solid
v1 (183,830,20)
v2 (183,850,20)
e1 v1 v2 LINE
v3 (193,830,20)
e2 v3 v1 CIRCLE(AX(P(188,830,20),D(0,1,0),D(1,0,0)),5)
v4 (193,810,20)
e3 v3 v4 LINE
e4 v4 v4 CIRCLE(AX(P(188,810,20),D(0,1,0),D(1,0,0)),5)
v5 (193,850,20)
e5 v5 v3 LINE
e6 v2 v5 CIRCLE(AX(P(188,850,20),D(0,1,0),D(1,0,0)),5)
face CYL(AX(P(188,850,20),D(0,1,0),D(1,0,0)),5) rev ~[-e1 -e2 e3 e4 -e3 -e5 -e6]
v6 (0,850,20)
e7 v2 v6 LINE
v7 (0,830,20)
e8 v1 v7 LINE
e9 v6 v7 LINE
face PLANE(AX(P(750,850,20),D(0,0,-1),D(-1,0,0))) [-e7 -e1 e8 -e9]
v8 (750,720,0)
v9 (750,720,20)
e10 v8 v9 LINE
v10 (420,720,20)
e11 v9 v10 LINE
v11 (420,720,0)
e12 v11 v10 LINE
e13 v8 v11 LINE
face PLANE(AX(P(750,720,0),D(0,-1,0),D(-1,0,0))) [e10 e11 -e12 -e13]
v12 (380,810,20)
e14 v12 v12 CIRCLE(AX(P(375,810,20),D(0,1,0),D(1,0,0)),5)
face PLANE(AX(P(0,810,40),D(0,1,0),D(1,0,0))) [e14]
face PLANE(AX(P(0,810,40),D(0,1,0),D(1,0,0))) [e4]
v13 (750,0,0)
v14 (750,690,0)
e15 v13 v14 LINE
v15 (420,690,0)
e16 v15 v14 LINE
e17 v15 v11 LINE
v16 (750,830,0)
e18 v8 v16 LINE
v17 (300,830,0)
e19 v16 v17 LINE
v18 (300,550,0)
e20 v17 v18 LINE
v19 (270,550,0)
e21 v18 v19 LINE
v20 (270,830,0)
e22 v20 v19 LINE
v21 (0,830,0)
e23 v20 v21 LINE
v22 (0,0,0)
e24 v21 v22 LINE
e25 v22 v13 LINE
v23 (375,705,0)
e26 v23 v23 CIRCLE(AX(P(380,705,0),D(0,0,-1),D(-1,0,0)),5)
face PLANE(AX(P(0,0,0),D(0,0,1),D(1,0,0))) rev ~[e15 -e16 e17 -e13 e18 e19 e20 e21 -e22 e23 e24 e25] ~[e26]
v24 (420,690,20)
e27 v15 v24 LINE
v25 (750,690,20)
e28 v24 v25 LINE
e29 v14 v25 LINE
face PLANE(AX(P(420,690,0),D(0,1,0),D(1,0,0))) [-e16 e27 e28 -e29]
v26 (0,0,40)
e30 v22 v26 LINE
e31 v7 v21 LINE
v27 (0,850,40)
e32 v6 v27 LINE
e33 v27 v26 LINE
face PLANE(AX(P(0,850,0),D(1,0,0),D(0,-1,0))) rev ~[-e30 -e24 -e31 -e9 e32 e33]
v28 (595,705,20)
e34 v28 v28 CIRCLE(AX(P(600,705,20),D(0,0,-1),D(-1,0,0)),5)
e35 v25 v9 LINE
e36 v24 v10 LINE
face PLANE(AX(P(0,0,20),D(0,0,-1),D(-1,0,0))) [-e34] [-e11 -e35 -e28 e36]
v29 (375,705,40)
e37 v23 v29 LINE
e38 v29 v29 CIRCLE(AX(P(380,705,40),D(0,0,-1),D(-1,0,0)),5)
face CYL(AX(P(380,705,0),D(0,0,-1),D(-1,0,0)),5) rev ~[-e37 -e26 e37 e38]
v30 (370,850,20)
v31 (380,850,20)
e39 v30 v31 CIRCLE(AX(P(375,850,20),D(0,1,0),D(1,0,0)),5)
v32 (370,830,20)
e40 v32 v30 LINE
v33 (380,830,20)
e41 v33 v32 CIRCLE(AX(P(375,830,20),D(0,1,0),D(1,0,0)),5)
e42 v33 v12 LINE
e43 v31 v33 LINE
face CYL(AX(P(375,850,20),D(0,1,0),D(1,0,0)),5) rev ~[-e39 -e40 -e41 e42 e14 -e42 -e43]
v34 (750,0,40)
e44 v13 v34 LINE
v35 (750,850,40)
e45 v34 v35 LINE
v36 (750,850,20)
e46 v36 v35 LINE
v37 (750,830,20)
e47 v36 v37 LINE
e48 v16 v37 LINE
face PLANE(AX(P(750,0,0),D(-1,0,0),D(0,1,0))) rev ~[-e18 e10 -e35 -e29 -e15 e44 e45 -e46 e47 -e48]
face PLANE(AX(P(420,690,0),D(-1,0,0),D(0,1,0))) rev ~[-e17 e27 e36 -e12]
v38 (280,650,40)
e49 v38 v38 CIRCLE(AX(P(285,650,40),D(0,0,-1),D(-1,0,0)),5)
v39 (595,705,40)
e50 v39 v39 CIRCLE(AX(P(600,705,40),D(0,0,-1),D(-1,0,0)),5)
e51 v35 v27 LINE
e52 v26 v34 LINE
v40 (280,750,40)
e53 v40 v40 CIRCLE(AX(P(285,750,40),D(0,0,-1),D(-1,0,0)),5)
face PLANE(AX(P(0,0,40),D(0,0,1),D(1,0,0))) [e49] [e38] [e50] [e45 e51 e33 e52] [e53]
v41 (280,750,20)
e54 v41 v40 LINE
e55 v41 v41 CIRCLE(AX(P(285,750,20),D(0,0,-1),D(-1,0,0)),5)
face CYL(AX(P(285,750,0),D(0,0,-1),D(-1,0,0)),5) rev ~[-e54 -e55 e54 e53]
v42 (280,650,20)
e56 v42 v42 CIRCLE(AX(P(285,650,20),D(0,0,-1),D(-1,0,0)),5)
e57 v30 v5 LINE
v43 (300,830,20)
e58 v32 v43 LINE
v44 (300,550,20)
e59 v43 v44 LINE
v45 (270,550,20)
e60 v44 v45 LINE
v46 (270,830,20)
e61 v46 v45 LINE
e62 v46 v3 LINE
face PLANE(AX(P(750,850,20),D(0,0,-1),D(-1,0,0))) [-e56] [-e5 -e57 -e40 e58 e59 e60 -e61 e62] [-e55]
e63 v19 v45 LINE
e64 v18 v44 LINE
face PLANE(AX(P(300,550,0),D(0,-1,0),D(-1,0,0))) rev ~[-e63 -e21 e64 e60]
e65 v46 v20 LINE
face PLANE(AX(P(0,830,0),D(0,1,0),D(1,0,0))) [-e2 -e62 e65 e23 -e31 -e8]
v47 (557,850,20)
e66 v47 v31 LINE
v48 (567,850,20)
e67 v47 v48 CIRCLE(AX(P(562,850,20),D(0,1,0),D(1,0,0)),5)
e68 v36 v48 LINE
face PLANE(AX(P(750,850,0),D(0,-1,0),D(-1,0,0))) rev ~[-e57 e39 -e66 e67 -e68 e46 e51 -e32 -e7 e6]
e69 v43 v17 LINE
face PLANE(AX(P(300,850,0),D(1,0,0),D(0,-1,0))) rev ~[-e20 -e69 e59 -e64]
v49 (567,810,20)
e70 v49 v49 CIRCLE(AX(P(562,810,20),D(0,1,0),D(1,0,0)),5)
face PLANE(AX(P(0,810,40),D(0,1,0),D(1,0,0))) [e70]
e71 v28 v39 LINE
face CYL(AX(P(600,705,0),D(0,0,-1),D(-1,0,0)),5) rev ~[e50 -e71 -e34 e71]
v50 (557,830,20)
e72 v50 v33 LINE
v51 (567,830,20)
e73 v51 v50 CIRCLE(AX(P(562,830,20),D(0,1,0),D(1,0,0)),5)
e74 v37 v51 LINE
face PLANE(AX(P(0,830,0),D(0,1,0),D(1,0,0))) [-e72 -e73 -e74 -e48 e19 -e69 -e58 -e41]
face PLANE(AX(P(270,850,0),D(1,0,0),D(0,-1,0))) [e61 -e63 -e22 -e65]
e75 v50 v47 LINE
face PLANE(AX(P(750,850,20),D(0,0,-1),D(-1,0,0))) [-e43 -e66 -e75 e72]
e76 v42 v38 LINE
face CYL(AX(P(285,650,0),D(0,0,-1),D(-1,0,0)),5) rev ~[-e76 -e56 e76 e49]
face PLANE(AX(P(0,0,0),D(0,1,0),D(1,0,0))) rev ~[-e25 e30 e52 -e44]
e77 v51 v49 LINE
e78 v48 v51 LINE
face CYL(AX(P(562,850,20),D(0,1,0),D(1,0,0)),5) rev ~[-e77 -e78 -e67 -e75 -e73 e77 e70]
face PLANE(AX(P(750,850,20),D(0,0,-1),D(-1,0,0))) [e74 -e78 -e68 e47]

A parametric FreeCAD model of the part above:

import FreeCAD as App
import Part
import Sketcher

doc = App.newDocument("Part")
params = doc.addObject("Spreadsheet::Sheet", "Params")
for row, (alias, value) in enumerate([
    ("sketch1_width", "750 mm"),
    ("sketch1_height", "850 mm"),
    ("pad1_length", "40 mm"),
    ("sketch2_width", "750 mm"),
    ("sketch2_height", "20 mm"),
    ("pocket1_length", "20 mm"),
    ("sketch3_diameter", "10 mm"),
    ("pocket2_length", "40 mm"),
    ("sketch4_height", "30 mm"),
    ("sketch4_width", "330 mm"),
    ("pocket3_length", "20 mm"),
    ("sketch5_width", "30 mm"),
    ("sketch5_height", "300 mm"),
    ("pocket4_length", "20 mm"),
    ("sketch6_diameter", "10 mm"),
    ("pocket5_length", "81.4375 mm"),
], start=1):
    params.set(f"A{row}", alias)
    params.set(f"B{row}", "=" + value)
    params.setAlias(f"B{row}", alias)

body = doc.addObject("PartDesign::Body", "Body")

# Sketch on XY plane
sketch1 = doc.addObject("Sketcher::SketchObject", "Sketch")
body.addObject(sketch1)
sketch1.AttachmentSupport = (doc.XY_Plane, [""])
sketch1.MapMode = "FlatFace"
sketch1.addGeometry(Part.LineSegment(App.Vector(0, 850, 0), App.Vector(0, 0, 0)), False)
sketch1.addGeometry(Part.LineSegment(App.Vector(0, 0, 0), App.Vector(750, 0, 0)), False)
sketch1.addGeometry(Part.LineSegment(App.Vector(750, 0, 0), App.Vector(750, 850, 0)), False)
sketch1.addGeometry(Part.LineSegment(App.Vector(750, 850, 0), App.Vector(0, 850, 0)), False)
sketch1.addConstraint(Sketcher.Constraint("Coincident", 0, 2, 1, 1))
sketch1.addConstraint(Sketcher.Constraint("Coincident", 1, 2, 2, 1))
sketch1.addConstraint(Sketcher.Constraint("Coincident", 2, 2, 3, 1))
sketch1.addConstraint(Sketcher.Constraint("Coincident", 3, 2, 0, 1))
sketch1.addConstraint(Sketcher.Constraint("Vertical", 0))
sketch1.addConstraint(Sketcher.Constraint("Horizontal", 1))
sketch1.addConstraint(Sketcher.Constraint("Vertical", 2))
sketch1.addConstraint(Sketcher.Constraint("Horizontal", 3))
sketch1.addConstraint(Sketcher.Constraint("Coincident", 0, 2, -1, 1))
sketch1.addConstraint(Sketcher.Constraint("DistanceX", 1, 1, 1, 2, 750.0))
sketch1.addConstraint(Sketcher.Constraint("DistanceY", 0, 2, 0, 1, 850.0))
sketch1.setExpression("Constraints[9]", "Params.sketch1_width")
sketch1.setExpression("Constraints[10]", "Params.sketch1_height")
pad1 = doc.addObject("PartDesign::Pad", "Pad")
body.addObject(pad1)
pad1.Profile = sketch1
pad1.setExpression("Length", "Params.pad1_length")

# Sketch on XZ plane
sketch2 = doc.addObject("Sketcher::SketchObject", "Sketch001")
body.addObject(sketch2)
sketch2.AttachmentSupport = (doc.XZ_Plane, [""])
sketch2.MapMode = "FlatFace"
sketch2.AttachmentOffset = App.Placement(App.Vector(0, 0, -850), App.Rotation())
sketch2.addGeometry(Part.LineSegment(App.Vector(750, 20, 0), App.Vector(750, 0, 0)), False)
sketch2.addGeometry(Part.LineSegment(App.Vector(750, 0, 0), App.Vector(0, 0, 0)), False)
sketch2.addGeometry(Part.LineSegment(App.Vector(0, 0, 0), App.Vector(0, 20, 0)), False)
sketch2.addGeometry(Part.LineSegment(App.Vector(0, 20, 0), App.Vector(750, 20, 0)), False)
sketch2.addConstraint(Sketcher.Constraint("Coincident", 0, 2, 1, 1))
sketch2.addConstraint(Sketcher.Constraint("Coincident", 1, 2, 2, 1))
sketch2.addConstraint(Sketcher.Constraint("Coincident", 2, 2, 3, 1))
sketch2.addConstraint(Sketcher.Constraint("Coincident", 3, 2, 0, 1))
sketch2.addConstraint(Sketcher.Constraint("Vertical", 0))
sketch2.addConstraint(Sketcher.Constraint("Horizontal", 1))
sketch2.addConstraint(Sketcher.Constraint("Vertical", 2))
sketch2.addConstraint(Sketcher.Constraint("Horizontal", 3))
sketch2.addConstraint(Sketcher.Constraint("Coincident", 1, 2, -1, 1))
sketch2.addConstraint(Sketcher.Constraint("DistanceX", 1, 2, 1, 1, 750.0))
sketch2.addConstraint(Sketcher.Constraint("DistanceY", 0, 2, 0, 1, 20.0))
sketch2.setExpression("Constraints[9]", "Params.sketch2_width")
sketch2.setExpression("Constraints[10]", "Params.sketch2_height")
pocket1 = doc.addObject("PartDesign::Pocket", "Pocket")
body.addObject(pocket1)
pocket1.Profile = sketch2
pocket1.setExpression("Length", "Params.pocket1_length")
pocket1.Reversed = True

# Sketch on XZ plane
sketch3 = doc.addObject("Sketcher::SketchObject", "Sketch002")
body.addObject(sketch3)
sketch3.AttachmentSupport = (doc.XZ_Plane, [""])
sketch3.MapMode = "FlatFace"
sketch3.AttachmentOffset = App.Placement(App.Vector(0, 0, -850), App.Rotation())
sketch3.addGeometry(Part.Circle(App.Vector(562, 20, 0), App.Vector(0, 0, 1), 5), False)
sketch3.addGeometry(Part.Circle(App.Vector(375, 20, 0), App.Vector(0, 0, 1), 5), False)
sketch3.addGeometry(Part.Circle(App.Vector(188, 20, 0), App.Vector(0, 0, 1), 5), False)
sketch3.addConstraint(Sketcher.Constraint("Equal", 0, 1))
sketch3.addConstraint(Sketcher.Constraint("Equal", 1, 2))
sketch3.addConstraint(Sketcher.Constraint("Horizontal", 0, 3, 1, 3))
sketch3.addConstraint(Sketcher.Constraint("Horizontal", 1, 3, 2, 3))
sketch3.addConstraint(Sketcher.Constraint("Diameter", 0, 10.0))
sketch3.addConstraint(Sketcher.Constraint("DistanceX", -1, 1, 0, 3, 562.0))
sketch3.addConstraint(Sketcher.Constraint("DistanceY", -1, 1, 0, 3, 20.0))
sketch3.addConstraint(Sketcher.Constraint("DistanceX", -1, 1, 1, 3, 375.0))
sketch3.addConstraint(Sketcher.Constraint("DistanceX", -1, 1, 2, 3, 188.0))
sketch3.setExpression("Constraints[4]", "Params.sketch3_diameter")
pocket2 = doc.addObject("PartDesign::Pocket", "Pocket001")
body.addObject(pocket2)
pocket2.Profile = sketch3
pocket2.setExpression("Length", "Params.pocket2_length")
pocket2.Reversed = True

# Sketch on XY plane
sketch4 = doc.addObject("Sketcher::SketchObject", "Sketch003")
body.addObject(sketch4)
sketch4.AttachmentSupport = (doc.XY_Plane, [""])
sketch4.MapMode = "FlatFace"
sketch4.addGeometry(Part.LineSegment(App.Vector(420, 720, 0), App.Vector(750, 720, 0)), False)
sketch4.addGeometry(Part.LineSegment(App.Vector(750, 720, 0), App.Vector(750, 690, 0)), False)
sketch4.addGeometry(Part.LineSegment(App.Vector(750, 690, 0), App.Vector(420, 690, 0)), False)
sketch4.addGeometry(Part.LineSegment(App.Vector(420, 690, 0), App.Vector(420, 720, 0)), False)
sketch4.addConstraint(Sketcher.Constraint("Coincident", 0, 2, 1, 1))
sketch4.addConstraint(Sketcher.Constraint("Coincident", 1, 2, 2, 1))
sketch4.addConstraint(Sketcher.Constraint("Coincident", 2, 2, 3, 1))
sketch4.addConstraint(Sketcher.Constraint("Coincident", 3, 2, 0, 1))
sketch4.addConstraint(Sketcher.Constraint("Horizontal", 0))
sketch4.addConstraint(Sketcher.Constraint("Vertical", 1))
sketch4.addConstraint(Sketcher.Constraint("Horizontal", 2))
sketch4.addConstraint(Sketcher.Constraint("Vertical", 3))
sketch4.addConstraint(Sketcher.Constraint("DistanceY", 1, 2, 1, 1, 30.0))
sketch4.addConstraint(Sketcher.Constraint("DistanceX", -1, 1, 2, 2, 420.0))
sketch4.addConstraint(Sketcher.Constraint("DistanceX", 0, 1, 0, 2, 330.0))
sketch4.addConstraint(Sketcher.Constraint("DistanceY", -1, 1, 0, 2, 720.0))
sketch4.setExpression("Constraints[8]", "Params.sketch4_height")
sketch4.setExpression("Constraints[10]", "Params.sketch4_width")
pocket3 = doc.addObject("PartDesign::Pocket", "Pocket002")
body.addObject(pocket3)
pocket3.Profile = sketch4
pocket3.setExpression("Length", "Params.pocket3_length")
pocket3.Reversed = True

# Sketch on XY plane
sketch5 = doc.addObject("Sketcher::SketchObject", "Sketch004")
body.addObject(sketch5)
sketch5.AttachmentSupport = (doc.XY_Plane, [""])
sketch5.MapMode = "FlatFace"
sketch5.addGeometry(Part.LineSegment(App.Vector(270, 850, 0), App.Vector(300, 850, 0)), False)
sketch5.addGeometry(Part.LineSegment(App.Vector(300, 850, 0), App.Vector(300, 550, 0)), False)
sketch5.addGeometry(Part.LineSegment(App.Vector(300, 550, 0), App.Vector(270, 550, 0)), False)
sketch5.addGeometry(Part.LineSegment(App.Vector(270, 550, 0), App.Vector(270, 850, 0)), False)
sketch5.addConstraint(Sketcher.Constraint("Coincident", 0, 2, 1, 1))
sketch5.addConstraint(Sketcher.Constraint("Coincident", 1, 2, 2, 1))
sketch5.addConstraint(Sketcher.Constraint("Coincident", 2, 2, 3, 1))
sketch5.addConstraint(Sketcher.Constraint("Coincident", 3, 2, 0, 1))
sketch5.addConstraint(Sketcher.Constraint("Horizontal", 0))
sketch5.addConstraint(Sketcher.Constraint("Vertical", 1))
sketch5.addConstraint(Sketcher.Constraint("Horizontal", 2))
sketch5.addConstraint(Sketcher.Constraint("Vertical", 3))
sketch5.addConstraint(Sketcher.Constraint("DistanceX", 0, 1, 0, 2, 30.0))
sketch5.addConstraint(Sketcher.Constraint("DistanceY", 1, 2, 1, 1, 300.0))
sketch5.addConstraint(Sketcher.Constraint("DistanceX", -1, 1, 0, 2, 300.0))
sketch5.addConstraint(Sketcher.Constraint("DistanceY", -1, 1, 0, 2, 850.0))
sketch5.setExpression("Constraints[8]", "Params.sketch5_width")
sketch5.setExpression("Constraints[9]", "Params.sketch5_height")
pocket4 = doc.addObject("PartDesign::Pocket", "Pocket003")
body.addObject(pocket4)
pocket4.Profile = sketch5
pocket4.setExpression("Length", "Params.pocket4_length")
pocket4.Reversed = True

# Sketch on XY plane
sketch6 = doc.addObject("Sketcher::SketchObject", "Sketch005")
body.addObject(sketch6)
sketch6.AttachmentSupport = (doc.XY_Plane, [""])
sketch6.MapMode = "FlatFace"
sketch6.addGeometry(Part.Circle(App.Vector(600, 705, 0), App.Vector(0, 0, 1), 5), False)
sketch6.addGeometry(Part.Circle(App.Vector(380, 705, 0), App.Vector(0, 0, 1), 5), False)
sketch6.addGeometry(Part.Circle(App.Vector(285, 750, 0), App.Vector(0, 0, 1), 5), False)
sketch6.addGeometry(Part.Circle(App.Vector(285, 650, 0), App.Vector(0, 0, 1), 5), False)
sketch6.addConstraint(Sketcher.Constraint("Equal", 0, 1))
sketch6.addConstraint(Sketcher.Constraint("Equal", 1, 2))
sketch6.addConstraint(Sketcher.Constraint("Equal", 2, 3))
sketch6.addConstraint(Sketcher.Constraint("Horizontal", 0, 3, 1, 3))
sketch6.addConstraint(Sketcher.Constraint("Vertical", 2, 3, 3, 3))
sketch6.addConstraint(Sketcher.Constraint("Diameter", 0, 10.0))
sketch6.addConstraint(Sketcher.Constraint("DistanceX", -1, 1, 0, 3, 600.0))
sketch6.addConstraint(Sketcher.Constraint("DistanceY", -1, 1, 0, 3, 705.0))
sketch6.addConstraint(Sketcher.Constraint("DistanceX", -1, 1, 1, 3, 380.0))
sketch6.addConstraint(Sketcher.Constraint("DistanceX", -1, 1, 2, 3, 285.0))
sketch6.addConstraint(Sketcher.Constraint("DistanceY", -1, 1, 2, 3, 750.0))
sketch6.addConstraint(Sketcher.Constraint("DistanceY", -1, 1, 3, 3, 650.0))
sketch6.setExpression("Constraints[5]", "Params.sketch6_diameter")
pocket5 = doc.addObject("PartDesign::Pocket", "Pocket004")
body.addObject(pocket5)
pocket5.Profile = sketch6
pocket5.setExpression("Length", "Params.pocket5_length")
pocket5.Reversed = True

doc.recompute()
